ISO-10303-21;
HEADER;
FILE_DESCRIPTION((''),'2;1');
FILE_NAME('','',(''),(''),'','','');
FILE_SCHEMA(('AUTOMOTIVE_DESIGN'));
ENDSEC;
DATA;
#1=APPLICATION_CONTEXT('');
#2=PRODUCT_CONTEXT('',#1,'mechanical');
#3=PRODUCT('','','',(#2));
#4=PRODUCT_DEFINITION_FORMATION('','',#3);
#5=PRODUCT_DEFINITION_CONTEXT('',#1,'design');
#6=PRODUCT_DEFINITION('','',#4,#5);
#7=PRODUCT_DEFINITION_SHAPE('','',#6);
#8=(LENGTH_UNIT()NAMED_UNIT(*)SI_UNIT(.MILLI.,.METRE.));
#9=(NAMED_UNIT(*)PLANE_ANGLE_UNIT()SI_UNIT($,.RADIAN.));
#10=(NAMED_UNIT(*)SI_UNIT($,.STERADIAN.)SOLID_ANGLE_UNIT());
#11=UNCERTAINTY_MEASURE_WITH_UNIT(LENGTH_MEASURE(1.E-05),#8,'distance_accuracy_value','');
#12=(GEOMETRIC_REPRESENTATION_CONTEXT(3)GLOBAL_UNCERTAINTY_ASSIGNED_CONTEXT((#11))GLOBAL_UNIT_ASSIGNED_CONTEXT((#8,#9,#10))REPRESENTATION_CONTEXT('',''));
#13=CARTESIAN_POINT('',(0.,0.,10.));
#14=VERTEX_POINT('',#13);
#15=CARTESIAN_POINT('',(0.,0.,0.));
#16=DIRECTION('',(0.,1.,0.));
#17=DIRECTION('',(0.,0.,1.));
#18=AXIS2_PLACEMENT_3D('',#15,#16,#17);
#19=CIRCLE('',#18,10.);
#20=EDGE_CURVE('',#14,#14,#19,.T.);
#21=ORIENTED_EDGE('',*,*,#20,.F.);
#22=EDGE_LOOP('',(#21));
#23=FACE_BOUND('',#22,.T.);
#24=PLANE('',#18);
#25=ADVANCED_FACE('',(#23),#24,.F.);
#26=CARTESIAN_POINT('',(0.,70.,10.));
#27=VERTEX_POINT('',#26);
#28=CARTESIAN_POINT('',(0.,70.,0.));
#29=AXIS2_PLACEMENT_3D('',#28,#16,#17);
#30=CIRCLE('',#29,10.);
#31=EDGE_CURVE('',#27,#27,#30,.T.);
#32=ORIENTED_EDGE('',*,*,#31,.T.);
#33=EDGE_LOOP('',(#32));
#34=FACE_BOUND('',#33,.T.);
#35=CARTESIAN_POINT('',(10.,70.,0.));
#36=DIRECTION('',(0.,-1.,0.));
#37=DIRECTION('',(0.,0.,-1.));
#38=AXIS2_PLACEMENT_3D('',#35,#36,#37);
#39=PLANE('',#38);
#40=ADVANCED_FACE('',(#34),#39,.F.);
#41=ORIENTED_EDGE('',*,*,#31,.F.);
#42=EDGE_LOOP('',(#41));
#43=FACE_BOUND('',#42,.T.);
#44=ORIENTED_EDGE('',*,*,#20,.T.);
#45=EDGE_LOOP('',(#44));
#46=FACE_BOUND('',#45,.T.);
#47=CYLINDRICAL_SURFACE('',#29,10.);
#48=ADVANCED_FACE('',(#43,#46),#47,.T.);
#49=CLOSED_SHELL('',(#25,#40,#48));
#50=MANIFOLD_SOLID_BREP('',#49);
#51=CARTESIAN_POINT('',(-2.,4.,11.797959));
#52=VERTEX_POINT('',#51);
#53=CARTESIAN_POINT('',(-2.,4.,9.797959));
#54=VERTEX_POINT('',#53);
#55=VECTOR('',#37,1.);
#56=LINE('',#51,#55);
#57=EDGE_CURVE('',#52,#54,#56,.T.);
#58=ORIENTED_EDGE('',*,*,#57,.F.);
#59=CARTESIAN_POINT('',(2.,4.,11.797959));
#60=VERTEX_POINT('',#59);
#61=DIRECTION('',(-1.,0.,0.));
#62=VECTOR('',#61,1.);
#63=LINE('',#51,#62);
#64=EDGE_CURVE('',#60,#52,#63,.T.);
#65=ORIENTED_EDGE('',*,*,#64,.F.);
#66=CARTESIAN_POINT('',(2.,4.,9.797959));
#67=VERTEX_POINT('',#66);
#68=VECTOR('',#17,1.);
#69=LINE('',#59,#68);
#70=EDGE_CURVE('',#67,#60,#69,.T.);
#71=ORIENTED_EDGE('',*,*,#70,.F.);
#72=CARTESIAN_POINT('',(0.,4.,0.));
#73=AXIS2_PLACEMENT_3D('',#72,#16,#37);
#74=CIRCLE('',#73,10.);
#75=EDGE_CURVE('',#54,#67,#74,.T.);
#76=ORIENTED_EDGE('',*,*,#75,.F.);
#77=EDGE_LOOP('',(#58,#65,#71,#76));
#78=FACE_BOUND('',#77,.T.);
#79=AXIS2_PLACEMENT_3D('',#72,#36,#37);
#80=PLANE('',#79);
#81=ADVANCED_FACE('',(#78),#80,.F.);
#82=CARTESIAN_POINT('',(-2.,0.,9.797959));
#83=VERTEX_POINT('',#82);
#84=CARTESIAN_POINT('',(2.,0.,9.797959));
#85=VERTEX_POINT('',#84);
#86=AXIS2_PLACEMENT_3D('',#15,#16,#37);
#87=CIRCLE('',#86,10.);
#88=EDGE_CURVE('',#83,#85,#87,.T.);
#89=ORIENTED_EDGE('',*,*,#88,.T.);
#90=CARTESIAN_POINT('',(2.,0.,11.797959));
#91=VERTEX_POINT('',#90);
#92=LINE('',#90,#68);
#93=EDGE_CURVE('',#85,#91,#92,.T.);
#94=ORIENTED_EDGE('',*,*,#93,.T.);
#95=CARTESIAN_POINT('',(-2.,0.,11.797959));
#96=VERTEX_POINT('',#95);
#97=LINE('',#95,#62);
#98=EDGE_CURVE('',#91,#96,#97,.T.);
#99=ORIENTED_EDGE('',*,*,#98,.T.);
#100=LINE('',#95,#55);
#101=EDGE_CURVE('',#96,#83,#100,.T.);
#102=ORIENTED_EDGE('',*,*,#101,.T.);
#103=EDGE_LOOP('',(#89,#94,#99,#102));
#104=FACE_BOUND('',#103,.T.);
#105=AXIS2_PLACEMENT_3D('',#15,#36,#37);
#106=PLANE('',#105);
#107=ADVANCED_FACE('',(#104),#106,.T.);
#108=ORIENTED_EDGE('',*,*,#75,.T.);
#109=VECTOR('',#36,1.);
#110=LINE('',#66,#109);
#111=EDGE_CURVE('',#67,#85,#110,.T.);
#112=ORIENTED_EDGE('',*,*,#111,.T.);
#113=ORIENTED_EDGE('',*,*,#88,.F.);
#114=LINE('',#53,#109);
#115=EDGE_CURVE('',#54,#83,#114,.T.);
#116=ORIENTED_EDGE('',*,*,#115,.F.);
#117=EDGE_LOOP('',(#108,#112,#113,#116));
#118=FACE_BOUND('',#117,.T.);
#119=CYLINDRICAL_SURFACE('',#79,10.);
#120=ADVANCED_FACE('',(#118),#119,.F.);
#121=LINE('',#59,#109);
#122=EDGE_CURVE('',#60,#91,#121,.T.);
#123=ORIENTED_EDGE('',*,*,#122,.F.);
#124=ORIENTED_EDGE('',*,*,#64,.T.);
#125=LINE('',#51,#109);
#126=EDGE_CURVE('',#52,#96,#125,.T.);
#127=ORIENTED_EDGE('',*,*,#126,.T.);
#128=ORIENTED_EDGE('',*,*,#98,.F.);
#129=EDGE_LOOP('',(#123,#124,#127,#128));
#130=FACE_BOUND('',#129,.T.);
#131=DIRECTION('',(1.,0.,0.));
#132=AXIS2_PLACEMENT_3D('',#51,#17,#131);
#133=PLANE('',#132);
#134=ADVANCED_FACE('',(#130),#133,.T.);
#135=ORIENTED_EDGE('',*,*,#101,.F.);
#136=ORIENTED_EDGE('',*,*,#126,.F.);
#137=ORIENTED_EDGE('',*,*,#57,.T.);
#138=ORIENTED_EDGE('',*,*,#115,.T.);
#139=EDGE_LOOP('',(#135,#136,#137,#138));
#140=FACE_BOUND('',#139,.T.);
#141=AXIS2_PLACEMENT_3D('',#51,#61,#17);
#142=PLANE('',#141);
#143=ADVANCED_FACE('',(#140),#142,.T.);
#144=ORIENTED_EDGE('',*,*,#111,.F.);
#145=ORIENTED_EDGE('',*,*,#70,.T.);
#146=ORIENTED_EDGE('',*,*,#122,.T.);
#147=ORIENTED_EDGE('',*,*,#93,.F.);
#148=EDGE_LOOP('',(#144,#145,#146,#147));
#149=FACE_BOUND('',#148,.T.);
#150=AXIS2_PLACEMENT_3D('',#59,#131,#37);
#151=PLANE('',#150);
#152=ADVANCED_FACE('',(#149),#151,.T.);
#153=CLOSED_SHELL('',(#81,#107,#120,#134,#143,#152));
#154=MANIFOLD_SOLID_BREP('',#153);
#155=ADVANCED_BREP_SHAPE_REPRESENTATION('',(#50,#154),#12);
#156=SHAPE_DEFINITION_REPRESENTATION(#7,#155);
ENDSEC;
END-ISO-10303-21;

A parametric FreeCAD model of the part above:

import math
import FreeCAD as App
import Part
import Sketcher

V = App.Vector

doc = App.newDocument("Part")
body = doc.addObject("PartDesign::Body", "Body")

sketch1 = doc.addObject("Sketcher::SketchObject", "Sketch")
body.addObject(sketch1)
sketch1.AttachmentSupport = (doc.XY_Plane, [""])
sketch1.MapMode = "FlatFace"
sketch1.addGeometry(Part.LineSegment(V(0, 70, 0), V(0, 0, 0)), False)
sketch1.addGeometry(Part.LineSegment(V(0, 0, 0), V(10, 0, 0)), False)
sketch1.addGeometry(Part.LineSegment(V(10, 0, 0), V(10, 70, 0)), False)
sketch1.addGeometry(Part.LineSegment(V(10, 70, 0), V(0, 70, 0)), False)
sketch1.addConstraint(Sketcher.Constraint("Coincident", 0, 2, 1, 1))
sketch1.addConstraint(Sketcher.Constraint("Coincident", 1, 2, 2, 1))
sketch1.addConstraint(Sketcher.Constraint("Coincident", 2, 2, 3, 1))
sketch1.addConstraint(Sketcher.Constraint("Coincident", 3, 2, 0, 1))
sketch1.addConstraint(Sketcher.Constraint("Vertical", 0))
sketch1.addConstraint(Sketcher.Constraint("Horizontal", 1))
sketch1.addConstraint(Sketcher.Constraint("Vertical", 2))
sketch1.addConstraint(Sketcher.Constraint("Horizontal", 3))
sketch1.addConstraint(Sketcher.Constraint("Coincident", 0, 2, -1, 1))
sketch1.addConstraint(Sketcher.Constraint("DistanceX", 1, 1, 1, 2, 10.0))
sketch1.addConstraint(Sketcher.Constraint("DistanceY", 0, 2, 0, 1, 70.0))
revolution = doc.addObject("PartDesign::Revolution", "Revolution")
body.addObject(revolution)
revolution.Profile = sketch1
revolution.ReferenceAxis = (sketch1, ["V_Axis"])
revolution.Angle = 360
body2 = doc.addObject("PartDesign::Body", "Body001")

sketch2 = doc.addObject("Sketcher::SketchObject", "Sketch001")
body2.addObject(sketch2)
sketch2.AttachmentSupport = (doc.getObject("XZ_Plane001"), [""])
sketch2.MapMode = "FlatFace"
sketch2.addGeometry(Part.LineSegment(V(-2, 11.8, 0), V(-2, 9.8, 0)), False)
sketch2.addGeometry(Part.ArcOfCircle(Part.Circle(V(0, 0, 0), V(0, 0, 1), 10), math.radians(78), math.radians(102)), False)
sketch2.addGeometry(Part.LineSegment(V(2, 9.8, 0), V(2, 11.8, 0)), False)
sketch2.addGeometry(Part.LineSegment(V(2, 11.8, 0), V(-2, 11.8, 0)), False)
sketch2.addConstraint(Sketcher.Constraint("Coincident", 0, 2, 1, 2))
sketch2.addConstraint(Sketcher.Constraint("Coincident", 1, 1, 2, 1))
sketch2.addConstraint(Sketcher.Constraint("Coincident", 2, 2, 3, 1))
sketch2.addConstraint(Sketcher.Constraint("Coincident", 3, 2, 0, 1))
sketch2.addConstraint(Sketcher.Constraint("Vertical", 0))
sketch2.addConstraint(Sketcher.Constraint("Vertical", 2))
sketch2.addConstraint(Sketcher.Constraint("Horizontal", 3))
sketch2.addConstraint(Sketcher.Constraint("Coincident", 1, 3, -1, 1))
sketch2.addConstraint(Sketcher.Constraint("Horizontal", 0, 2, 1, 1))
sketch2.addConstraint(Sketcher.Constraint("Radius", 1, 10.0))
sketch2.addConstraint(Sketcher.Constraint("DistanceX", 3, 2, 3, 1, 4.0))
sketch2.addConstraint(Sketcher.Constraint("DistanceY", 0, 2, 0, 1, 2.0))
pad1 = doc.addObject("PartDesign::Pad", "Pad")
body2.addObject(pad1)
pad1.Profile = sketch2
pad1.Length = 4
pad1.Reversed = True

doc.recompute()
